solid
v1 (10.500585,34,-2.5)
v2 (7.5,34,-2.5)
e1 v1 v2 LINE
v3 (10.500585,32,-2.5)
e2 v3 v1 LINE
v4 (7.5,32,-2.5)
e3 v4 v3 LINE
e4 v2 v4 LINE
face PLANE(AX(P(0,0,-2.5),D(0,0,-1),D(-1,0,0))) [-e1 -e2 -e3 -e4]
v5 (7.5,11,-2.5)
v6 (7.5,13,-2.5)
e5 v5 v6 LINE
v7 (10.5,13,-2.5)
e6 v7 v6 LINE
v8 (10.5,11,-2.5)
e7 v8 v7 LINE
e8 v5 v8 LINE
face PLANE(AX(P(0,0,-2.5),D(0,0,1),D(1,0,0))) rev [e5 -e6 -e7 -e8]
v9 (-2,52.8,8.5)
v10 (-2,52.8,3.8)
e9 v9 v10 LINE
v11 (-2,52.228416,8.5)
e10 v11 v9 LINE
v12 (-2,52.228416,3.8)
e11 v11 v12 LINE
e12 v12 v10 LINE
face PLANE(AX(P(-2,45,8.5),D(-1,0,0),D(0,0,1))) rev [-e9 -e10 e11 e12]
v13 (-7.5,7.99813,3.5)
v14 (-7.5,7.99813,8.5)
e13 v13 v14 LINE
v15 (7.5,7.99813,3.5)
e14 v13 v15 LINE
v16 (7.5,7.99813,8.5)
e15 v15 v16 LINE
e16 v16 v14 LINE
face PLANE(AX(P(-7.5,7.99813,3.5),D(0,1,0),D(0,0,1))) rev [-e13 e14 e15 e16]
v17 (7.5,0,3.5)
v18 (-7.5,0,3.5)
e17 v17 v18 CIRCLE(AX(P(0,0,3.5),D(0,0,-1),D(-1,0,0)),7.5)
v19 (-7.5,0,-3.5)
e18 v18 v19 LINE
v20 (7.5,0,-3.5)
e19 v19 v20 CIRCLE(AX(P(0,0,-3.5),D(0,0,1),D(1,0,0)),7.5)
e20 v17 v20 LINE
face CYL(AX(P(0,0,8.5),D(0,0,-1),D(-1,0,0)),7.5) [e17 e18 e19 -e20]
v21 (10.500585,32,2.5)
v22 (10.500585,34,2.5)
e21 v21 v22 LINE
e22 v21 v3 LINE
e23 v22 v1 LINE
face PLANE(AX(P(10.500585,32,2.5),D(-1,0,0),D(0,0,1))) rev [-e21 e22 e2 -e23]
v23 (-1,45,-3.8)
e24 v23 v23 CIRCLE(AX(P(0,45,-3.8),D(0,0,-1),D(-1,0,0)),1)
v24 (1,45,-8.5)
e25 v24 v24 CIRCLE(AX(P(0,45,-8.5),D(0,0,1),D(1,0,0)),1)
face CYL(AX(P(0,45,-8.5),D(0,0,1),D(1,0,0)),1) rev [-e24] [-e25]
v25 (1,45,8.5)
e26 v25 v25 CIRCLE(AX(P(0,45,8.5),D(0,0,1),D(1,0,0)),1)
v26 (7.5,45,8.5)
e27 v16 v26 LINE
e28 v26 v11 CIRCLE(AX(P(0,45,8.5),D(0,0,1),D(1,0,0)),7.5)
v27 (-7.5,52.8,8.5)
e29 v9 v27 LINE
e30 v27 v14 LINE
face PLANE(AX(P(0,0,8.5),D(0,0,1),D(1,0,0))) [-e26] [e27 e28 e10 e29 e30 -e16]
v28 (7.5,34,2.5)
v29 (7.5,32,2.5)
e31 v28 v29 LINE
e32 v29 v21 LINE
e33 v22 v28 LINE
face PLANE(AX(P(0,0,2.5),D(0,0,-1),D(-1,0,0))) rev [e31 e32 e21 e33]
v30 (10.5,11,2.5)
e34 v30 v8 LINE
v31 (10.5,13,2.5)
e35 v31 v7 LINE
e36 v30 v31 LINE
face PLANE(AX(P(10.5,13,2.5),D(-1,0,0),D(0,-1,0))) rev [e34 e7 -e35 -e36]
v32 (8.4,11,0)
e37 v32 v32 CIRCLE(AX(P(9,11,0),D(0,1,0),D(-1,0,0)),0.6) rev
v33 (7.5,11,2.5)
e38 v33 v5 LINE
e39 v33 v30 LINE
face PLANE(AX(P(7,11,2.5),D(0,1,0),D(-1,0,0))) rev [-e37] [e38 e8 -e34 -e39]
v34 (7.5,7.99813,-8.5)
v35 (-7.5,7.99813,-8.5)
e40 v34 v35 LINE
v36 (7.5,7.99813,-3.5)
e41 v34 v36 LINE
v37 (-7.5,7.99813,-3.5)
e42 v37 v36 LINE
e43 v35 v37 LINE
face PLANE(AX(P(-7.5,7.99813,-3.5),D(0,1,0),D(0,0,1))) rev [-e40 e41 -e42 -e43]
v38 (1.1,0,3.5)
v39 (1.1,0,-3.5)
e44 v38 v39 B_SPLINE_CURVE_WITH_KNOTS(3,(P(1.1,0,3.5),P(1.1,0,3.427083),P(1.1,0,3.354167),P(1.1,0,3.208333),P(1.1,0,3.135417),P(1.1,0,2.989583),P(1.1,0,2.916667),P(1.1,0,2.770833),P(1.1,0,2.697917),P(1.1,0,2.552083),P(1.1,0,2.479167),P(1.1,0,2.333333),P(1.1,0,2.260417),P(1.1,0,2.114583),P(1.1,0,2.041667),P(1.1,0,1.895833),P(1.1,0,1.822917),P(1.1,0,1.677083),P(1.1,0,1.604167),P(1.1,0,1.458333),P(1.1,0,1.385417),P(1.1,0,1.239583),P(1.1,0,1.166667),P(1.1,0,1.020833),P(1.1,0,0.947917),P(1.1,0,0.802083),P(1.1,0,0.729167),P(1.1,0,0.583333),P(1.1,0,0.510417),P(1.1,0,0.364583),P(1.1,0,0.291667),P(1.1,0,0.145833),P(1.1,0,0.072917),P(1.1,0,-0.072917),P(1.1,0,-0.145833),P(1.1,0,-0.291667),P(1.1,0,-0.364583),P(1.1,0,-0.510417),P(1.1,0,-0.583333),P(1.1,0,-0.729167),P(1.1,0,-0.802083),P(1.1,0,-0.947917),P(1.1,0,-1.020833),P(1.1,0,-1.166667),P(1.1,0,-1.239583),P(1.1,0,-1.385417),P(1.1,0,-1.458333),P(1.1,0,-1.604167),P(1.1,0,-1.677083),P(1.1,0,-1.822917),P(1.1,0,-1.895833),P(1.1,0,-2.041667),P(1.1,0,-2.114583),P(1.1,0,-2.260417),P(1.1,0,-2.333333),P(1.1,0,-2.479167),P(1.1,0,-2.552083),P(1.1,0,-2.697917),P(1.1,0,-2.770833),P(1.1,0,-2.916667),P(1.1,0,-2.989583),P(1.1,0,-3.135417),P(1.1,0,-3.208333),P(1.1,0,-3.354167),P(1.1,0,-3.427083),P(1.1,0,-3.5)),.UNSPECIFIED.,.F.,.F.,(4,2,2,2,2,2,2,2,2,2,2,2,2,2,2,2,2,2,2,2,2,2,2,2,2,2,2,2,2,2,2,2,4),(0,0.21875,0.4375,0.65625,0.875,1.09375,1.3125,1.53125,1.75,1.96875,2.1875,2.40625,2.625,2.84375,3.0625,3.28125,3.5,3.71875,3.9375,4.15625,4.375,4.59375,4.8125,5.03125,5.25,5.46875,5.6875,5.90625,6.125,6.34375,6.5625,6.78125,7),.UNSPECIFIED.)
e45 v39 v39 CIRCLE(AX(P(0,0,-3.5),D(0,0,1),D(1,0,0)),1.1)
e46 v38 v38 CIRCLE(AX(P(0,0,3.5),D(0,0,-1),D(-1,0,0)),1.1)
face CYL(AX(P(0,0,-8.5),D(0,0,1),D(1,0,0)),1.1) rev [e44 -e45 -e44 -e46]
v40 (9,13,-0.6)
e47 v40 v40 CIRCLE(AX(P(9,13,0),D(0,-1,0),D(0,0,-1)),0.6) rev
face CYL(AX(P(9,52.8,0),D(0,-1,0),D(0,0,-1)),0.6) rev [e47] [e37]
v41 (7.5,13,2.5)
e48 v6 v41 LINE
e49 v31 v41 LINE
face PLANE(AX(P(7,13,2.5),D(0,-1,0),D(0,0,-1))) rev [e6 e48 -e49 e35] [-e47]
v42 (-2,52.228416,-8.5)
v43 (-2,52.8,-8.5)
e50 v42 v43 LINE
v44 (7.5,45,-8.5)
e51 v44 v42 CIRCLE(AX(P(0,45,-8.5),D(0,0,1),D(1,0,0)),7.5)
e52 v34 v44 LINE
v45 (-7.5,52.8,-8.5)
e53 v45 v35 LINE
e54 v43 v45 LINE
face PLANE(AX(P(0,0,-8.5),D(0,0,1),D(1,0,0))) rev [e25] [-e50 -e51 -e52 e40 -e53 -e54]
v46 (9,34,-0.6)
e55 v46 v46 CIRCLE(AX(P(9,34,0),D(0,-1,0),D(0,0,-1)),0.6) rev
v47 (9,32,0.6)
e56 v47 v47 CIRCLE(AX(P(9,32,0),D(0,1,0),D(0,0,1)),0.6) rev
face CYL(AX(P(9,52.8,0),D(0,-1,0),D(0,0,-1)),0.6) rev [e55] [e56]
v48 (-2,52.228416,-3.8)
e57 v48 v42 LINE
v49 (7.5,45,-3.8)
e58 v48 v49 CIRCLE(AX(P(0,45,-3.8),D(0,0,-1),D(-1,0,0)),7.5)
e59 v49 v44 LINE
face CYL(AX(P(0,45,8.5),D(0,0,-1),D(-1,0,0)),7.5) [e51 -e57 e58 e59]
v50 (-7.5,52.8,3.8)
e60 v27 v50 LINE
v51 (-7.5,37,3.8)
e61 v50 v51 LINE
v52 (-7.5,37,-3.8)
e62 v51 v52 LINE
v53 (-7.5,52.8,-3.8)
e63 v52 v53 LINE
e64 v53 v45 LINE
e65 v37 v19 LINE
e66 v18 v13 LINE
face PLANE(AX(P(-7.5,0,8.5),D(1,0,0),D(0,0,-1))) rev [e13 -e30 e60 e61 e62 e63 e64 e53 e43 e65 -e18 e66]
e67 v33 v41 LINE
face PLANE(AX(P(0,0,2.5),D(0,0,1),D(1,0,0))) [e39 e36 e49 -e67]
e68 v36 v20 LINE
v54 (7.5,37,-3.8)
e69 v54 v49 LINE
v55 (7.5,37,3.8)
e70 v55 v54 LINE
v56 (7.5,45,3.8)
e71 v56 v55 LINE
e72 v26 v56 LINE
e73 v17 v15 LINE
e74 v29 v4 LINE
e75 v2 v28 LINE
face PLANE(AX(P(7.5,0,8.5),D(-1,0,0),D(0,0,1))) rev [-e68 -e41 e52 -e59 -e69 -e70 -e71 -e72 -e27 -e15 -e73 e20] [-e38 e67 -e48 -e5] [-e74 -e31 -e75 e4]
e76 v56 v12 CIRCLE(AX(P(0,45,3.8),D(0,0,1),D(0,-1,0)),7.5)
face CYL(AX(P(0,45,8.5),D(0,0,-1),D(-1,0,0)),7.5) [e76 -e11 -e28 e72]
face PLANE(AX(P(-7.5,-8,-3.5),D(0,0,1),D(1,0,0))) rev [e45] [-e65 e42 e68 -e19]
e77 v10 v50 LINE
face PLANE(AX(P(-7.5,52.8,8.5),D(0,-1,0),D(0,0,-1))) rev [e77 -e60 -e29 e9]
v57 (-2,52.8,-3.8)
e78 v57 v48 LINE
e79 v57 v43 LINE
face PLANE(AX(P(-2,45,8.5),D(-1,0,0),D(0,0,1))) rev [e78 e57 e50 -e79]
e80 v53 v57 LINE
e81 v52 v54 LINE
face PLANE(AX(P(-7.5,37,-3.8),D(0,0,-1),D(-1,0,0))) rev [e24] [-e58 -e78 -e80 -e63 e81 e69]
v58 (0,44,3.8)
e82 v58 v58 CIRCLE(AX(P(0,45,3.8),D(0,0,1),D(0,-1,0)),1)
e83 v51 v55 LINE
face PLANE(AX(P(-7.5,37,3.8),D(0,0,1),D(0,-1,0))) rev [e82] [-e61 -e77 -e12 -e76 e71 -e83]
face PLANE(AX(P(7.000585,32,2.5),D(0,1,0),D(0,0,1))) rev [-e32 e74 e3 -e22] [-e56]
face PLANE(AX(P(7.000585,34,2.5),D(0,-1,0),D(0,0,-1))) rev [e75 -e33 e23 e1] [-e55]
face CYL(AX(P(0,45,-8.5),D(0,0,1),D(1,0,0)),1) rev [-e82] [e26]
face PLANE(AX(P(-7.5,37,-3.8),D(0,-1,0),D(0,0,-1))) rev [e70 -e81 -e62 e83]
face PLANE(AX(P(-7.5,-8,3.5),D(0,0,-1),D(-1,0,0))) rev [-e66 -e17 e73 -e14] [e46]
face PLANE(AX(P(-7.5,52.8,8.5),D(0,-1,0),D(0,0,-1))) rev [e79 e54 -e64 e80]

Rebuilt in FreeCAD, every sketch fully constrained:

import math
import FreeCAD as App
import Part
import Sketcher
from FreeCAD import Vector


def add_polygon(sketch, points):
    """Adds a closed chain of lines whose ends are joined by coincident constraints."""
    first, n = sketch.GeometryCount, len(points)
    for a, b in zip(points, points[1:] + points[:1]):
        sketch.addGeometry(Part.LineSegment(App.Vector(*a, 0), App.Vector(*b, 0)), False)
    for i in range(n):
        sketch.addConstraint(Sketcher.Constraint("Coincident", first + i, 2, first + (i + 1) % n, 1))

doc = App.newDocument("Part")
body = doc.addObject("PartDesign::Body", "Body")

# Sketch on XY plane
sketch1 = body.newObject("Sketcher::SketchObject", "Sketch")
sketch1.AttachmentSupport = (doc.getObject("XY_Plane"), [""])
sketch1.MapMode = "FlatFace"
sketch1.addGeometry([
    Part.LineSegment(Vector(-7.5, 45, 0), Vector(-7.5, 0, 0)),
    Part.ArcOfCircle(Part.Circle(Vector(0, 0, 0), Vector(0, 0, 1), 7.5), math.radians(180), math.radians(360)),
    Part.LineSegment(Vector(7.5, 0, 0), Vector(7.5, 45, 0)),
    Part.ArcOfCircle(Part.Circle(Vector(0, 45, 0), Vector(0, 0, 1), 7.5), math.radians(0), math.radians(180)),
], False)
sketch1.addConstraint([
    Sketcher.Constraint("Tangent", 0, 2, 1, 1),
    Sketcher.Constraint("Tangent", 1, 2, 2, 1),
    Sketcher.Constraint("Tangent", 2, 2, 3, 1),
    Sketcher.Constraint("Tangent", 3, 2, 0, 1),
    Sketcher.Constraint("Vertical", 0),
    Sketcher.Constraint("Vertical", 2),
    Sketcher.Constraint("Coincident", 1, 3, -1, 1),
    Sketcher.Constraint("Radius", 1, 7.5),
    Sketcher.Constraint("DistanceY", 0, 2, 0, 1, 45.0),
])
pad1 = body.newObject("PartDesign::Pad", "Pad")
pad1.Profile = sketch1
pad1.Length = 17
pad1.Midplane = True

# Sketch on YZ plane
sketch2 = body.newObject("Sketcher::SketchObject", "Sketch001")
sketch2.AttachmentSupport = (doc.getObject("YZ_Plane"), [""])
sketch2.MapMode = "FlatFace"
sketch2.AttachmentOffset = App.Placement(Vector(0, 0, 7.5), App.Rotation())
add_polygon(sketch2, [(7.99813, -3.5), (-8, -3.5), (-8, -9), (7.99813, -9)])  # lines 0-3
add_polygon(sketch2, [(7.99813, 9), (-8, 9), (-8, 3.5), (7.99813, 3.5)])  # lines 4-7
sketch2.addConstraint([
    Sketcher.Constraint("Horizontal", 0),
    Sketcher.Constraint("Vertical", 1),
    Sketcher.Constraint("Horizontal", 2),
    Sketcher.Constraint("Vertical", 3),
    Sketcher.Constraint("Horizontal", 4),
    Sketcher.Constraint("Vertical", 5),
    Sketcher.Constraint("Horizontal", 6),
    Sketcher.Constraint("Vertical", 7),
    Sketcher.Constraint("Symmetric", 1, 2, 4, 2, -1),
    Sketcher.Constraint("Symmetric", 3, 2, 6, 2, -1),
    Sketcher.Constraint("DistanceY", 1, 2, 1, 1, 5.5),
    Sketcher.Constraint("DistanceX", 0, 2, -1, 1, 8.0),
    Sketcher.Constraint("DistanceY", 1, 2, -1, 1, 9.0),
    Sketcher.Constraint("DistanceX", 0, 2, 0, 1, 15.99813),
])
pocket1 = body.newObject("PartDesign::Pocket", "Pocket")
pocket1.Profile = sketch2
pocket1.Type = "ThroughAll"
pocket1.Midplane = True

# Sketch on XY plane
sketch3 = body.newObject("Sketcher::SketchObject", "Sketch002")
sketch3.AttachmentSupport = (doc.getObject("XY_Plane"), [""])
sketch3.MapMode = "FlatFace"
add_polygon(sketch3, [(-7.5, 52.8), (-7.5, 45), (-2, 45), (-2, 52.8)])  # lines 0-3
sketch3.addConstraint([
    Sketcher.Constraint("Vertical", 0),
    Sketcher.Constraint("Horizontal", 1),
    Sketcher.Constraint("Vertical", 2),
    Sketcher.Constraint("Horizontal", 3),
    Sketcher.Constraint("DistanceX", 1, 1, 1, 2, 5.5),
    Sketcher.Constraint("DistanceY", 0, 2, 0, 1, 7.8),
    Sketcher.Constraint("DistanceY", -1, 1, 0, 2, 45.0),
    Sketcher.Constraint("DistanceX", 1, 2, -1, 1, 2.0),
])
pad2 = body.newObject("PartDesign::Pad", "Pad001")
pad2.Profile = sketch3
pad2.Length = 17
pad2.Midplane = True

# Sketch on YZ plane
sketch4 = body.newObject("Sketcher::SketchObject", "Sketch003")
sketch4.AttachmentSupport = (doc.getObject("YZ_Plane"), [""])
sketch4.MapMode = "FlatFace"
add_polygon(sketch4, [(55, 3.8), (37, 3.8), (37, -3.8), (55, -3.8)])  # lines 0-3
sketch4.addConstraint([
    Sketcher.Constraint("Horizontal", 0),
    Sketcher.Constraint("Vertical", 1),
    Sketcher.Constraint("Horizontal", 2),
    Sketcher.Constraint("Vertical", 3),
    Sketcher.Constraint("DistanceX", 0, 2, 0, 1, 18.0),
    Sketcher.Constraint("DistanceY", 1, 2, 1, 1, 7.6),
    Sketcher.Constraint("DistanceX", -1, 1, 0, 2, 37.0),
    Sketcher.Constraint("DistanceY", -1, 1, 0, 2, 3.8),
])
pocket2 = body.newObject("PartDesign::Pocket", "Pocket001")
pocket2.Profile = sketch4
pocket2.Type = "ThroughAll"
pocket2.Midplane = True

# Sketch on XY plane
sketch5 = body.newObject("Sketcher::SketchObject", "Sketch004")
sketch5.AttachmentSupport = (doc.getObject("XY_Plane"), [""])
sketch5.MapMode = "FlatFace"
sketch5.addGeometry([
    Part.Circle(Vector(0, 0, 0), Vector(0, 0, 1), 1.1),
    Part.Circle(Vector(0, 45, 0), Vector(0, 0, 1), 1),
], False)
sketch5.addConstraint([
    Sketcher.Constraint("Coincident", 0, 3, -1, 1),
    Sketcher.Constraint("PointOnObject", 1, 3, -2),
    Sketcher.Constraint("Diameter", 1, 2.0),
    Sketcher.Constraint("Diameter", 0, 2.2),
    Sketcher.Constraint("DistanceY", -1, 1, 1, 3, 45.0),
])
pocket3 = body.newObject("PartDesign::Pocket", "Pocket002")
pocket3.Profile = sketch5
pocket3.Type = "ThroughAll"
pocket3.Midplane = True

# Sketch on XY plane
sketch6 = body.newObject("Sketcher::SketchObject", "Sketch005")
sketch6.AttachmentSupport = (doc.getObject("XY_Plane"), [""])
sketch6.MapMode = "FlatFace"
add_polygon(sketch6, [(7, 13), (7, 11), (10.5, 11), (10.5, 13)])  # lines 0-3
sketch6.addConstraint([
    Sketcher.Constraint("Vertical", 0),
    Sketcher.Constraint("Horizontal", 1),
    Sketcher.Constraint("Vertical", 2),
    Sketcher.Constraint("Horizontal", 3),
    Sketcher.Constraint("DistanceY", 0, 2, 0, 1, 2.0),
    Sketcher.Constraint("DistanceX", 1, 1, 1, 2, 3.5),
    Sketcher.Constraint("DistanceX", -1, 1, 0, 2, 7.0),
    Sketcher.Constraint("DistanceY", -1, 1, 0, 2, 11.0),
])
pad3 = body.newObject("PartDesign::Pad", "Pad002")
pad3.Profile = sketch6
pad3.Length = 5
pad3.Midplane = True

# Sketch on XY plane
sketch7 = body.newObject("Sketcher::SketchObject", "Sketch006")
sketch7.AttachmentSupport = (doc.getObject("XY_Plane"), [""])
sketch7.MapMode = "FlatFace"
add_polygon(sketch7, [(7.000585, 34), (7.000585, 32), (10.500585, 32), (10.500585, 34)])  # lines 0-3
sketch7.addConstraint([
    Sketcher.Constraint("Vertical", 0),
    Sketcher.Constraint("Horizontal", 1),
    Sketcher.Constraint("Vertical", 2),
    Sketcher.Constraint("Horizontal", 3),
    Sketcher.Constraint("DistanceY", 0, 2, 0, 1, 2.0),
    Sketcher.Constraint("DistanceX", 1, 1, 1, 2, 3.5),
    Sketcher.Constraint("DistanceY", -1, 1, 0, 2, 32.0),
    Sketcher.Constraint("DistanceX", -1, 1, 0, 2, 7.000585),
])
pad4 = body.newObject("PartDesign::Pad", "Pad003")
pad4.Profile = sketch7
pad4.Length = 5
pad4.Midplane = True

# Sketch on XZ plane
sketch8 = body.newObject("Sketcher::SketchObject", "Sketch007")
sketch8.AttachmentSupport = (doc.getObject("XZ_Plane"), [""])
sketch8.MapMode = "FlatFace"
sketch8.addGeometry(Part.Circle(Vector(9, 0, 0), Vector(0, 0, 1), 0.6), False)
sketch8.addConstraint([
    Sketcher.Constraint("PointOnObject", 0, 3, -1),
    Sketcher.Constraint("Diameter", 0, 1.2),
    Sketcher.Constraint("DistanceX", -1, 1, 0, 3, 9.0),
])
pocket4 = body.newObject("PartDesign::Pocket", "Pocket003")
pocket4.Profile = sketch8
pocket4.Type = "ThroughAll"
pocket4.Midplane = True

doc.recompute()
